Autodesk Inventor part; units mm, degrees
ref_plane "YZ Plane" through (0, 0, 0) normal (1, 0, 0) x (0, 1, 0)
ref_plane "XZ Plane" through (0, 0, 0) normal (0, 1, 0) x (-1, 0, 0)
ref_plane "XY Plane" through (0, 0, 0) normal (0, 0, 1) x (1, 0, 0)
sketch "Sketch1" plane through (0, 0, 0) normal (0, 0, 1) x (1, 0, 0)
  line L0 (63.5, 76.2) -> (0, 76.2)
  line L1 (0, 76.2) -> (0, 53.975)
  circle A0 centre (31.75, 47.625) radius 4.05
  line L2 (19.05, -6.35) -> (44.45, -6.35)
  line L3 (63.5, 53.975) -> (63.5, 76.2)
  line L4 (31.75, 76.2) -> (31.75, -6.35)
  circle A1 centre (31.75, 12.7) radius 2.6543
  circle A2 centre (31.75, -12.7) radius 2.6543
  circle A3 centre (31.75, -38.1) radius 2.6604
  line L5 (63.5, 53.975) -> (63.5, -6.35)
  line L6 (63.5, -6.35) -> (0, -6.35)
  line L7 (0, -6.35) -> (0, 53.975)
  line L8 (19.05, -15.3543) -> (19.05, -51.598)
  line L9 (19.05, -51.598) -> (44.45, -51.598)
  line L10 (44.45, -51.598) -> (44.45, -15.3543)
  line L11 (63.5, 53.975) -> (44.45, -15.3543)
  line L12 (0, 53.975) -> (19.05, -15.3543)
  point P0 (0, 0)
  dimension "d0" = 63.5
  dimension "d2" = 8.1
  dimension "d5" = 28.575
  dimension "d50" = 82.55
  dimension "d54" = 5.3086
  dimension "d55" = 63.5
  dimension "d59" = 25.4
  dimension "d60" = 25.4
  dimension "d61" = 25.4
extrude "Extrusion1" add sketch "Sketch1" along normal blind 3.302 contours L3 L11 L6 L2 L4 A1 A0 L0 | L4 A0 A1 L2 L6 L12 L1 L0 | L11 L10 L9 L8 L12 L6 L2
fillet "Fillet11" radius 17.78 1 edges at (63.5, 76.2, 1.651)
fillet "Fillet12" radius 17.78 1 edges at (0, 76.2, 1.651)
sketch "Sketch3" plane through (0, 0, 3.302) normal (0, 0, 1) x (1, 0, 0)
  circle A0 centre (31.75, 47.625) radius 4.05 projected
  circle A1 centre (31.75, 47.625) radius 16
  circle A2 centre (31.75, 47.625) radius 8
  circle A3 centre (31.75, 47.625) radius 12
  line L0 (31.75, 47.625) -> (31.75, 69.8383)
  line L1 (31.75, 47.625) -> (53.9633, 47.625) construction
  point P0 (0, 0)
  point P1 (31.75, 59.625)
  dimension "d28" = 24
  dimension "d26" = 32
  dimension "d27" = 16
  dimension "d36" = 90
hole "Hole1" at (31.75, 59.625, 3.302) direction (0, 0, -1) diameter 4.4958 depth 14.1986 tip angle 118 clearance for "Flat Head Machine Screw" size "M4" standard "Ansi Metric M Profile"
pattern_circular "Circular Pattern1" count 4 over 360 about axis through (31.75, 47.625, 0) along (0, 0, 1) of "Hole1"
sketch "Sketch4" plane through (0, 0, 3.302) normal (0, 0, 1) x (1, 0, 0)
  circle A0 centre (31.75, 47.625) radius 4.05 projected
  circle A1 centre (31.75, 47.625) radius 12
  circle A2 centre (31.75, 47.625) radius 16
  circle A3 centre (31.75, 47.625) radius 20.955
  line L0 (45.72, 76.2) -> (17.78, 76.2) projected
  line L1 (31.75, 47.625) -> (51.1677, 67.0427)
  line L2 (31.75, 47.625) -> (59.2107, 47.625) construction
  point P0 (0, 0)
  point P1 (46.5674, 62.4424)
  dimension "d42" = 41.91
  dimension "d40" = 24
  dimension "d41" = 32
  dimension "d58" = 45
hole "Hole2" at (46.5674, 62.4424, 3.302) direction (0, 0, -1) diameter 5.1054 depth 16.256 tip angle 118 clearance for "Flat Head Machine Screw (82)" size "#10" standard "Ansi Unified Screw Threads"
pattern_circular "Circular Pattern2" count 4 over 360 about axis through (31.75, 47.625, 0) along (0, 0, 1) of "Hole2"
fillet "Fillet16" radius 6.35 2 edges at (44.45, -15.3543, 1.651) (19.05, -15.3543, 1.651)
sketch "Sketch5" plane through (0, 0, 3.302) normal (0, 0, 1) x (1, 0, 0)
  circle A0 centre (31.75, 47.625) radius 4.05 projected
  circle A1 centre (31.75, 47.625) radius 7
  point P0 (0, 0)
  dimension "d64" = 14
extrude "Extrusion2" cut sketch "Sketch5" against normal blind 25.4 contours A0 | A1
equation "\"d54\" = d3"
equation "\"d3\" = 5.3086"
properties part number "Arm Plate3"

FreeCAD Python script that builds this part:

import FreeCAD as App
import Part
import Sketcher
Q = App.Units.Quantity


def edges_at(feature, points):
    """Names of the edges that pass closest to the given points."""
    edges = feature.Shape.Edges
    near = lambda p: min(range(len(edges)), key=lambda i: edges[i].distToShape(Part.Vertex(*p))[0])
    return sorted({f"Edge{near(p) + 1}" for p in points})

doc = App.newDocument("Part")
body = doc.addObject("PartDesign::Body", "Body")

# Sketch on XY plane
sketch1 = body.newObject("Sketcher::SketchObject", "Sketch")
sketch1.AttachmentSupport = (doc.getObject("XY_Plane"), [""])
sketch1.MapMode = "FlatFace"
sketch1.addGeometry(Part.LineSegment(App.Vector(63.5, 54, 0), App.Vector(63.5, 76.2, 0)), False)
sketch1.addGeometry(Part.LineSegment(App.Vector(63.5, 76.2, 0), App.Vector(0, 76.2, 0)), False)
sketch1.addGeometry(Part.LineSegment(App.Vector(0, 76.2, 0), App.Vector(0, 54, 0)), False)
sketch1.addGeometry(Part.LineSegment(App.Vector(0, 54, 0), App.Vector(19.1, -15.4, 0)), False)
sketch1.addGeometry(Part.LineSegment(App.Vector(19.1, -15.4, 0), App.Vector(19.1, -51.6, 0)), False)
sketch1.addGeometry(Part.LineSegment(App.Vector(19.1, -51.6, 0), App.Vector(44.5, -51.6, 0)), False)
sketch1.addGeometry(Part.LineSegment(App.Vector(44.5, -51.6, 0), App.Vector(44.5, -15.4, 0)), False)
sketch1.addGeometry(Part.LineSegment(App.Vector(44.5, -15.4, 0), App.Vector(63.5, 54, 0)), False)
sketch1.addGeometry(Part.Circle(App.Vector(31.8, 12.7, 0), App.Vector(0, 0, 1), 2.7), False)
sketch1.addGeometry(Part.Circle(App.Vector(31.8, 47.6, 0), App.Vector(0, 0, 1), 4), False)
sketch1.addGeometry(Part.Circle(App.Vector(31.8, -38.1, 0), App.Vector(0, 0, 1), 2.7), False)
sketch1.addGeometry(Part.Circle(App.Vector(31.8, -12.7, 0), App.Vector(0, 0, 1), 2.7), False)
sketch1.addConstraint(Sketcher.Constraint("Coincident", 0, 2, 1, 1))
sketch1.addConstraint(Sketcher.Constraint("Coincident", 1, 2, 2, 1))
sketch1.addConstraint(Sketcher.Constraint("Coincident", 2, 2, 3, 1))
sketch1.addConstraint(Sketcher.Constraint("Coincident", 3, 2, 4, 1))
sketch1.addConstraint(Sketcher.Constraint("Coincident", 4, 2, 5, 1))
sketch1.addConstraint(Sketcher.Constraint("Coincident", 5, 2, 6, 1))
sketch1.addConstraint(Sketcher.Constraint("Coincident", 6, 2, 7, 1))
sketch1.addConstraint(Sketcher.Constraint("Coincident", 7, 2, 0, 1))
sketch1.addConstraint(Sketcher.Constraint("Vertical", 0))
sketch1.addConstraint(Sketcher.Constraint("Horizontal", 1))
sketch1.addConstraint(Sketcher.Constraint("Vertical", 2))
sketch1.addConstraint(Sketcher.Constraint("Vertical", 4))
sketch1.addConstraint(Sketcher.Constraint("Horizontal", 5))
sketch1.addConstraint(Sketcher.Constraint("Vertical", 6))
sketch1.addConstraint(Sketcher.Constraint("Equal", 8, 11))
sketch1.addConstraint(Sketcher.Constraint("Symmetric", 8, 3, 11, 3, -1))
sketch1.addConstraint(Sketcher.Constraint("PointOnObject", 1, 2, -2))
sketch1.addConstraint(Sketcher.Constraint("Horizontal", 3, 2, 6, 2))
sketch1.addConstraint(Sketcher.Constraint("Horizontal", 2, 2, 7, 2))
sketch1.addConstraint(Sketcher.Constraint("Vertical", 8, 3, 9, 3))
sketch1.addConstraint(Sketcher.Constraint("Vertical", 9, 3, 10, 3))
sketch1.addConstraint(Sketcher.Constraint("Equal", 3, 7))
sketch1.addConstraint(Sketcher.Constraint("DistanceX", 5, 1, 5, 2, Q("1 in")))
sketch1.addConstraint(Sketcher.Constraint("Diameter", 8, Q("0.209 in")))
sketch1.addConstraint(Sketcher.Constraint("DistanceX", 1, 2, 1, 1, Q("2.5 in")))
sketch1.addConstraint(Sketcher.Constraint("DistanceY", 11, 3, 8, 3, Q("1 in")))
sketch1.addConstraint(Sketcher.Constraint("DistanceY", 10, 3, 11, 3, Q("1 in")))
sketch1.addConstraint(Sketcher.Constraint("Diameter", 9, Q("0.3189 in")))
sketch1.addConstraint(Sketcher.Constraint("DistanceY", 8, 3, 0, 2, Q("2.5 in")))
sketch1.addConstraint(Sketcher.Constraint("DistanceY", 9, 3, 0, 2, Q("1.125 in")))
sketch1.addConstraint(Sketcher.Constraint("DistanceX", 3, 2, 11, 3, Q("0.5 in")))
sketch1.addConstraint(Sketcher.Constraint("Diameter", 10, 5.3208))
sketch1.addConstraint(Sketcher.Constraint("DistanceY", 0, 1, 0, 2, Q("0.875 in")))
sketch1.addConstraint(Sketcher.Constraint("DistanceY", 4, 2, 4, 1, 36.2437))
sketch1.addConstraint(Sketcher.Constraint("DistanceY", 3, 2, -1, 1, Q("0.6045 in")))
pad1 = body.newObject("PartDesign::Pad", "Pad")
pad1.Profile = sketch1
pad1.Length = Q("0.13 in")
doc.recompute()

fillet = body.newObject("PartDesign::Fillet", "Fillet")
fillet.Base = (pad1, edges_at(pad1, [(63.5, 76.2, 1.651)]))
fillet.Radius = Q("0.7 in")
doc.recompute()

fillet2 = body.newObject("PartDesign::Fillet", "Fillet001")
fillet2.Base = (fillet, edges_at(fillet, [(0, 76.2, 1.651)]))
fillet2.Radius = Q("0.7 in")

# Sketch on XY plane
sketch2 = body.newObject("Sketcher::SketchObject", "Sketch001")
sketch2.AttachmentSupport = (doc.getObject("XY_Plane"), [""])
sketch2.MapMode = "FlatFace"
sketch2.AttachmentOffset = App.Placement(App.Vector(0, 0, 0.13 * 25.4), App.Rotation())
sketch2.addGeometry(Part.Circle(App.Vector(31.8, 59.6, 0), App.Vector(0, 0, 1), 2.2), False)
sketch2.addConstraint(Sketcher.Constraint("Diameter", 0, Q("0.177 in")))
sketch2.addConstraint(Sketcher.Constraint("DistanceX", -1, 1, 0, 3, Q("1.25 in")))
sketch2.addConstraint(Sketcher.Constraint("DistanceY", -1, 1, 0, 3, 59.625))
doc.recompute()
hole = body.newObject("PartDesign::Hole", "Hole")
hole.Profile = sketch2
hole.ThreadType = "None"
hole.Diameter = Q("0.177 in")
hole.DepthType = "Dimension"
hole.Depth = Q("0.559 in")
hole.DrillPoint = "Angled"
hole.DrillPointAngle = 118
doc.recompute()

datumline = body.newObject("PartDesign::Line", "DatumLine")
datumline.Placement = App.Placement(App.Vector(31.75, 47.625, 0), App.Rotation(App.Vector(0, 0, 1), App.Vector(0, 0, 1)))
polarpattern = body.newObject("PartDesign::PolarPattern", "PolarPattern")
polarpattern.Originals = [hole]
polarpattern.Axis = (datumline, [""])
polarpattern.Angle = 360
polarpattern.Occurrences = 4
body.Tip = polarpattern

# Sketch on XY plane
sketch3 = body.newObject("Sketcher::SketchObject", "Sketch002")
sketch3.AttachmentSupport = (doc.getObject("XY_Plane"), [""])
sketch3.MapMode = "FlatFace"
sketch3.AttachmentOffset = App.Placement(App.Vector(0, 0, 0.13 * 25.4), App.Rotation())
sketch3.addGeometry(Part.Circle(App.Vector(46.6, 62.4, 0), App.Vector(0, 0, 1), 2.6), False)
sketch3.addConstraint(Sketcher.Constraint("Diameter", 0, Q("0.201 in")))
sketch3.addConstraint(Sketcher.Constraint("DistanceX", -1, 1, 0, 3, 46.5674))
sketch3.addConstraint(Sketcher.Constraint("DistanceY", -1, 1, 0, 3, 62.4424))
doc.recompute()
hole2 = body.newObject("PartDesign::Hole", "Hole001")
hole2.Profile = sketch3
hole2.ThreadType = "None"
hole2.Diameter = Q("0.201 in")
hole2.DepthType = "Dimension"
hole2.Depth = Q("0.64 in")
hole2.DrillPoint = "Angled"
hole2.DrillPointAngle = 118
doc.recompute()

datumline2 = body.newObject("PartDesign::Line", "DatumLine001")
datumline2.Placement = App.Placement(App.Vector(31.75, 47.625, 0), App.Rotation(App.Vector(0, 0, 1), App.Vector(0, 0, 1)))
polarpattern2 = body.newObject("PartDesign::PolarPattern", "PolarPattern001")
polarpattern2.Originals = [hole2]
polarpattern2.Axis = (datumline2, [""])
polarpattern2.Angle = 360
polarpattern2.Occurrences = 4
body.Tip = polarpattern2
doc.recompute()

fillet3 = body.newObject("PartDesign::Fillet", "Fillet002")
fillet3.Base = (polarpattern2, edges_at(polarpattern2, [(44.45, -15.354, 1.651), (19.05, -15.354, 1.651)]))
fillet3.Radius = Q("0.25 in")

# Sketch on XY plane
sketch4 = body.newObject("Sketcher::SketchObject", "Sketch003")
sketch4.AttachmentSupport = (doc.getObject("XY_Plane"), [""])
sketch4.MapMode = "FlatFace"
sketch4.AttachmentOffset = App.Placement(App.Vector(0, 0, 0.13 * 25.4), App.Rotation())
sketch4.addGeometry(Part.Circle(App.Vector(32, 48, 0), App.Vector(0, 0, 1), 7), False)
sketch4.addConstraint(Sketcher.Constraint("Diameter", 0, 14.0))
sketch4.addConstraint(Sketcher.Constraint("DistanceX", -1, 1, 0, 3, Q("1.25 in")))
sketch4.addConstraint(Sketcher.Constraint("DistanceY", -1, 1, 0, 3, Q("1.875 in")))
pocket1 = body.newObject("PartDesign::Pocket", "Pocket")
pocket1.Profile = sketch4
pocket1.Length = Q("1 in")

doc.recompute()
